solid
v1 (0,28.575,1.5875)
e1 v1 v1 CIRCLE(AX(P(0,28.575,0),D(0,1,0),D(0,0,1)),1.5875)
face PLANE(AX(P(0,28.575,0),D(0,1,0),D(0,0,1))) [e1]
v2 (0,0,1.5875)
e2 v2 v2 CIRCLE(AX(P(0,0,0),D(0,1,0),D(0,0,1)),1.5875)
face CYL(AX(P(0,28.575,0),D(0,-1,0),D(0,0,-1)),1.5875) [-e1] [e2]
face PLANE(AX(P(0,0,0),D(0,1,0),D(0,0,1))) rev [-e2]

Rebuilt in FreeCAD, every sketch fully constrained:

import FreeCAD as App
import Part
import Sketcher
Q = App.Units.Quantity

doc = App.newDocument("Part")
body = doc.addObject("PartDesign::Body", "Body")

sketch1 = doc.addObject("Sketcher::SketchObject", "Sketch")
body.addObject(sketch1)
sketch1.AttachmentSupport = (doc.XZ_Plane, [""])
sketch1.MapMode = "FlatFace"
sketch1.addGeometry(Part.Circle(App.Vector(0, 0, 0), App.Vector(0, 0, 1), 1.5875), False)
sketch1.addConstraint([
    Sketcher.Constraint("Coincident", 0, 3, -1, 1),
    Sketcher.Constraint("Diameter", 0, Q("0.125 in")),
])
pad1 = doc.addObject("PartDesign::Pad", "Pad")
body.addObject(pad1)
pad1.Profile = sketch1
pad1.Length = Q("1.125 in")
pad1.Reversed = True

doc.recompute()
